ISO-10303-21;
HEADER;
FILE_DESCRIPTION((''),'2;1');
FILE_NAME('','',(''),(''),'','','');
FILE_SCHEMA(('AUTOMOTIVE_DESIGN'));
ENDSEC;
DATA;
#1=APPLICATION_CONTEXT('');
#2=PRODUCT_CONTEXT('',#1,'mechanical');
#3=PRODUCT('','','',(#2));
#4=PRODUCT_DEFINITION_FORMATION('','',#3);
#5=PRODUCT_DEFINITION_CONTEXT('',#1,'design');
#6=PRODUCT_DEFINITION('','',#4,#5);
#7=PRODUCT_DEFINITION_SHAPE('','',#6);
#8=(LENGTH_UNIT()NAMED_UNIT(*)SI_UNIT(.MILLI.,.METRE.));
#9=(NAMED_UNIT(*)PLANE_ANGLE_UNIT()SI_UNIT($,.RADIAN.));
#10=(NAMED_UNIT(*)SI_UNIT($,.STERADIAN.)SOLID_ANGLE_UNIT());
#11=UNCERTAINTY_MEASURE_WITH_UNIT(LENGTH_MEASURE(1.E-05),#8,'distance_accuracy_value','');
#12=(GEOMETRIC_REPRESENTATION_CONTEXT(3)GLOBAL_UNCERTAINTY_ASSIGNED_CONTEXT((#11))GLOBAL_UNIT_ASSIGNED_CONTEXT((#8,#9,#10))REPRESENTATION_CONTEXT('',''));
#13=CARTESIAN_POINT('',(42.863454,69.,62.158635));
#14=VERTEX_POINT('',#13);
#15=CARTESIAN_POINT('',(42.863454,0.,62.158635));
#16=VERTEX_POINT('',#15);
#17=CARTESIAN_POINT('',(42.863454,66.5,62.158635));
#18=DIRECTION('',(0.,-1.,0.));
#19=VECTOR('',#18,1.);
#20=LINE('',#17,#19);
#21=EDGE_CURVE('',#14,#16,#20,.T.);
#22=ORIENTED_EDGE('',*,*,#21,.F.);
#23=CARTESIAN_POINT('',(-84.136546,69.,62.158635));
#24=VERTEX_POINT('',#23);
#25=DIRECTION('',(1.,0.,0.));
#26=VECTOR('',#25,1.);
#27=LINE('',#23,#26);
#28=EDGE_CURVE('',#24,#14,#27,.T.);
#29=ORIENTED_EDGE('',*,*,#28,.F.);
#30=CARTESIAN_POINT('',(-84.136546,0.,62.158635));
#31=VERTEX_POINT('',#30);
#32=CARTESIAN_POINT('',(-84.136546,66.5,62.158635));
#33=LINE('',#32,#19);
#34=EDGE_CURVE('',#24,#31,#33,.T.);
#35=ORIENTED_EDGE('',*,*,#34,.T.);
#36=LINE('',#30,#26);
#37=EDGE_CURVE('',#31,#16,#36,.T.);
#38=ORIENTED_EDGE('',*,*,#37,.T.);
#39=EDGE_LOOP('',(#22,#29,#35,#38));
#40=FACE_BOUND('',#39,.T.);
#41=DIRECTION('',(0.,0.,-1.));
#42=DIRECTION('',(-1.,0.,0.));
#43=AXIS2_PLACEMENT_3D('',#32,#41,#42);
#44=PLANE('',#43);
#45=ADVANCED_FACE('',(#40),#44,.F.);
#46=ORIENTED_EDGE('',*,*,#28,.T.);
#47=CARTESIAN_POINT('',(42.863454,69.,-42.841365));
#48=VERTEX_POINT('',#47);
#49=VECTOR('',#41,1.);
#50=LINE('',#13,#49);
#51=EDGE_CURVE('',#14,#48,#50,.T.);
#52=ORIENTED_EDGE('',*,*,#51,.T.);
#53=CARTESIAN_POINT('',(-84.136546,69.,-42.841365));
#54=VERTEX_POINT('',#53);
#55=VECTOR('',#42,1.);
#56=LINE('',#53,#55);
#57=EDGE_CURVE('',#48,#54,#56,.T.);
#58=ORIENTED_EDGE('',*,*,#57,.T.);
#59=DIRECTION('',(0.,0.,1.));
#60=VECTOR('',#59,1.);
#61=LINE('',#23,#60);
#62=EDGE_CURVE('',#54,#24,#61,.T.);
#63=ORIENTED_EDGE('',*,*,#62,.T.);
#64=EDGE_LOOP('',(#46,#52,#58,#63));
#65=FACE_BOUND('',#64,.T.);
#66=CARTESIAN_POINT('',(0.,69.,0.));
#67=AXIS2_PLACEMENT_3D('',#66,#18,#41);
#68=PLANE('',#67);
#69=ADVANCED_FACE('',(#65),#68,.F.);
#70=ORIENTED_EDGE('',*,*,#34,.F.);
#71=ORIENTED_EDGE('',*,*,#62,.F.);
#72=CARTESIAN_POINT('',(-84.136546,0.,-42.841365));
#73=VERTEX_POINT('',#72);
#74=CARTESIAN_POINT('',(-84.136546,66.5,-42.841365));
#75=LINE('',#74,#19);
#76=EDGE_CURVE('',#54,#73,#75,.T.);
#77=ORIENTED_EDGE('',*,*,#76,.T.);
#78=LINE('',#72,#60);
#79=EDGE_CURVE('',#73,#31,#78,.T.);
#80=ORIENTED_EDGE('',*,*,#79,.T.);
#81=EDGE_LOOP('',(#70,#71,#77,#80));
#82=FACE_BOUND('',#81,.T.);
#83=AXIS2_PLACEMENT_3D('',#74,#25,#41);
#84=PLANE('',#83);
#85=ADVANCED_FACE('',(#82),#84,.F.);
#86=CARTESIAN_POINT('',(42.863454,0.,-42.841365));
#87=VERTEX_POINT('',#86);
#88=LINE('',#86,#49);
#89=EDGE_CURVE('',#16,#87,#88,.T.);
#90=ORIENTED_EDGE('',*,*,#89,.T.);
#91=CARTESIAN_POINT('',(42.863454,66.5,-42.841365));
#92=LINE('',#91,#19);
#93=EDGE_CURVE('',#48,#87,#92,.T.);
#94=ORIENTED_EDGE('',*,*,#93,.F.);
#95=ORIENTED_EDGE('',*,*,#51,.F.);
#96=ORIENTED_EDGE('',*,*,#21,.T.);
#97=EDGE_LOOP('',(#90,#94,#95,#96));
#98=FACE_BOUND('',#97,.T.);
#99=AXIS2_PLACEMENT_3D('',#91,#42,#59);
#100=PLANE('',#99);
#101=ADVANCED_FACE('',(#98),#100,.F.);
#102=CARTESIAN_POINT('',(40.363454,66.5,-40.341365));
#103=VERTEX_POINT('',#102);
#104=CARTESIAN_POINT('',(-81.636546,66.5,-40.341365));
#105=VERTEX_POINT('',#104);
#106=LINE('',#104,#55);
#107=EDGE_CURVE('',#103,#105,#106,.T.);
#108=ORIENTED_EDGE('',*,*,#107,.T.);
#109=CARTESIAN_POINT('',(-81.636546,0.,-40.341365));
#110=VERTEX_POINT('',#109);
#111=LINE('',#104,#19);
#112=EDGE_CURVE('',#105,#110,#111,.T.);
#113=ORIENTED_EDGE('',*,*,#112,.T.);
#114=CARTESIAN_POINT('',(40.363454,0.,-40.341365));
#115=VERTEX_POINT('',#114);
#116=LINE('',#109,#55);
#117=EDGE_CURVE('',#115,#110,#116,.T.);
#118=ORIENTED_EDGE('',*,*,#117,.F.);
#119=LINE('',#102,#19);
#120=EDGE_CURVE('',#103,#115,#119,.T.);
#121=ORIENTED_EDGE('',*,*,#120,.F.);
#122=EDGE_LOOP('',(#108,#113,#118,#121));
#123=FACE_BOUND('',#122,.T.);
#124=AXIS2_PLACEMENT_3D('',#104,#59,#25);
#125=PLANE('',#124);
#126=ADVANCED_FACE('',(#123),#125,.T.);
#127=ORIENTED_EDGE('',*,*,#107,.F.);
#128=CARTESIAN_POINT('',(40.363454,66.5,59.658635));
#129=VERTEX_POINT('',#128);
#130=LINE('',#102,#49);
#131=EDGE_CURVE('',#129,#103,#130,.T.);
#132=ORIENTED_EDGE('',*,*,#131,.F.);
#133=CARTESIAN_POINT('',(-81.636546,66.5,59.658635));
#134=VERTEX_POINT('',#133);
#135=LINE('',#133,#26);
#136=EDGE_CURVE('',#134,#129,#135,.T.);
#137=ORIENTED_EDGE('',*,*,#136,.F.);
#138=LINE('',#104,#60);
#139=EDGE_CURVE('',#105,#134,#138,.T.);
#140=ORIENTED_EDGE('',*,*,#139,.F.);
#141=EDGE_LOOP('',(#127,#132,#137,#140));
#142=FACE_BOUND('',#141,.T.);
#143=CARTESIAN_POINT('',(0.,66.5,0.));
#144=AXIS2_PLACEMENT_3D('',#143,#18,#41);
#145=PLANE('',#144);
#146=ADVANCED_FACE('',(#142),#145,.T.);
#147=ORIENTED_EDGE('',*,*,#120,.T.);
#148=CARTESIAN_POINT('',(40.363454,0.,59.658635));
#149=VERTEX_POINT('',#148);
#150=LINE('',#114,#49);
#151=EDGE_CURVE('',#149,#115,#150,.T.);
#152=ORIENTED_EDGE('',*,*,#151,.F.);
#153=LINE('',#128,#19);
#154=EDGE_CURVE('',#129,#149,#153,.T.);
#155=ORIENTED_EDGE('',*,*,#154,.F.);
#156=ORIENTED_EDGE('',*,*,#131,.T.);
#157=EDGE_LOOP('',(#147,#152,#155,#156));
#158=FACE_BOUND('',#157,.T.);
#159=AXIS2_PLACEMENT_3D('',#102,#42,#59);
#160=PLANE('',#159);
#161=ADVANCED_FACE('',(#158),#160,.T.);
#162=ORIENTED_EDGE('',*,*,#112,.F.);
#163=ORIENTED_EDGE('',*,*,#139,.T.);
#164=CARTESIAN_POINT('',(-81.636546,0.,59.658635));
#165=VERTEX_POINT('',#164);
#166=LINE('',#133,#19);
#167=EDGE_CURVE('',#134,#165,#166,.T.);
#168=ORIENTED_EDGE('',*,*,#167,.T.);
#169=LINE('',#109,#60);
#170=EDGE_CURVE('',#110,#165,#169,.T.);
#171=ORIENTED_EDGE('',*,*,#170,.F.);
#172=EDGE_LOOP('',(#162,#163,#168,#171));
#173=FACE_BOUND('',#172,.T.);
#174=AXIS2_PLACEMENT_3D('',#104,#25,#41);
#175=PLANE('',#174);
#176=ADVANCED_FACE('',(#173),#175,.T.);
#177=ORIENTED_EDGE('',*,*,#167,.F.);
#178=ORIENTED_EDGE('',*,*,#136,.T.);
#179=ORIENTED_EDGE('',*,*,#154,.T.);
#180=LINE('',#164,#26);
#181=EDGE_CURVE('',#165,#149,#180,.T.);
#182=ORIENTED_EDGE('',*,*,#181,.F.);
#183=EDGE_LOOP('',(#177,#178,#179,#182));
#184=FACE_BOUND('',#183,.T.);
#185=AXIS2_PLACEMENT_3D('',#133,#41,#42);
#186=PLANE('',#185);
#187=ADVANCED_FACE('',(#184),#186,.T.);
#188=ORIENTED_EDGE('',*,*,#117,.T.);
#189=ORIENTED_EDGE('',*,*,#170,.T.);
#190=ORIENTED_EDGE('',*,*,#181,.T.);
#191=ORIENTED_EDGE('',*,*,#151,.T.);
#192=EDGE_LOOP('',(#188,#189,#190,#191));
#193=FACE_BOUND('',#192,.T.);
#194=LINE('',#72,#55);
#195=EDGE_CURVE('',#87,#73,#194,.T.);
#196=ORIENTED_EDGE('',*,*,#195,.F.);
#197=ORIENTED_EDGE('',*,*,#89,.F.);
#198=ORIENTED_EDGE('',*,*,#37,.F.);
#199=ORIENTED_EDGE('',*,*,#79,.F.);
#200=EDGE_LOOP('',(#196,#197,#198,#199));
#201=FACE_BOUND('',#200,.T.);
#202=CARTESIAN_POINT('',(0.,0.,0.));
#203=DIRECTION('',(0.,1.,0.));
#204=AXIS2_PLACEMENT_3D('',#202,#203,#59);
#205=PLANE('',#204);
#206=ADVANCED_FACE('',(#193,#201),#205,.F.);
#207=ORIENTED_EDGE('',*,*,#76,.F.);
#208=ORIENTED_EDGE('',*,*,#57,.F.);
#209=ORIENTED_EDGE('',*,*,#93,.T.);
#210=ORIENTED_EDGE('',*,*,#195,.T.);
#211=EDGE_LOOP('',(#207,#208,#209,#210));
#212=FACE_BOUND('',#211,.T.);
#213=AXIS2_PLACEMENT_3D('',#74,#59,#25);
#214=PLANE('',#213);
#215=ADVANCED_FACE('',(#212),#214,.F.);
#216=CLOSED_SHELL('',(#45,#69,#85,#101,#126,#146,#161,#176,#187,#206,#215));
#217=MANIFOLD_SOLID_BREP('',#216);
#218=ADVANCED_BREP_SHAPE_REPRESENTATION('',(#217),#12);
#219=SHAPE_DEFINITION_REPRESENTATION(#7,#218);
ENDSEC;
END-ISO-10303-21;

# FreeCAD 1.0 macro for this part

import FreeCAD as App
import Part
import Sketcher


def add_polygon(sketch, points):
    """Adds a closed chain of lines whose ends are joined by coincident constraints."""
    first, n = sketch.GeometryCount, len(points)
    for a, b in zip(points, points[1:] + points[:1]):
        sketch.addGeometry(Part.LineSegment(App.Vector(*a, 0), App.Vector(*b, 0)), False)
    for i in range(n):
        sketch.addConstraint(Sketcher.Constraint("Coincident", first + i, 2, first + (i + 1) % n, 1))

doc = App.newDocument("Part")
body = doc.addObject("PartDesign::Body", "Body")

# Sketch on XZ plane
sketch1 = body.newObject("Sketcher::SketchObject", "Sketch")
sketch1.AttachmentSupport = (doc.getObject("XZ_Plane"), [""])
sketch1.MapMode = "FlatFace"
add_polygon(sketch1, [(-84, -43), (-84, 62), (43, 62), (43, -43)])  # lines 0-3
add_polygon(sketch1, [(40, 60), (-82, 60), (-82, -40), (40, -40)])  # lines 4-7
sketch1.addConstraint([
    Sketcher.Constraint("Vertical", 0),
    Sketcher.Constraint("Horizontal", 1),
    Sketcher.Constraint("Vertical", 2),
    Sketcher.Constraint("Horizontal", 3),
    Sketcher.Constraint("Horizontal", 4),
    Sketcher.Constraint("Vertical", 5),
    Sketcher.Constraint("Horizontal", 6),
    Sketcher.Constraint("Vertical", 7),
    Sketcher.Constraint("DistanceX", 1, 1, 1, 2, 127.0),
    Sketcher.Constraint("DistanceX", 4, 2, 4, 1, 122.0),
    Sketcher.Constraint("DistanceY", 0, 1, 0, 2, 105.0),
    Sketcher.Constraint("DistanceY", 5, 2, 5, 1, 100.0),
    Sketcher.Constraint("DistanceX", 0, 2, 4, 2, 2.5),
    Sketcher.Constraint("DistanceY", 4, 2, 0, 2, 2.5),
    Sketcher.Constraint("DistanceX", 0, 2, -1, 1, 84.136546),
    Sketcher.Constraint("DistanceY", -1, 1, 0, 2, 62.158635),
])
pad1 = body.newObject("PartDesign::Pad", "Pad")
pad1.Profile = sketch1
pad1.Length = 66.5
pad1.Reversed = True

# Sketch on XZ plane
sketch2 = body.newObject("Sketcher::SketchObject", "Sketch001")
sketch2.AttachmentSupport = (doc.getObject("XZ_Plane"), [""])
sketch2.MapMode = "FlatFace"
sketch2.AttachmentOffset = App.Placement(App.Vector(0, 0, -66.5), App.Rotation())
add_polygon(sketch2, [(-84, -43), (-84, 62), (43, 62), (43, -43)])  # lines 0-3
sketch2.addConstraint([
    Sketcher.Constraint("Vertical", 0),
    Sketcher.Constraint("Horizontal", 1),
    Sketcher.Constraint("Vertical", 2),
    Sketcher.Constraint("Horizontal", 3),
    Sketcher.Constraint("DistanceX", 1, 1, 1, 2, 127.0),
    Sketcher.Constraint("DistanceY", 0, 1, 0, 2, 105.0),
    Sketcher.Constraint("DistanceX", 0, 2, -1, 1, 84.136546),
    Sketcher.Constraint("DistanceY", -1, 1, 0, 2, 62.158635),
])
pad2 = body.newObject("PartDesign::Pad", "Pad001")
pad2.Profile = sketch2
pad2.Length = 2.5
pad2.Reversed = True

doc.recompute()
